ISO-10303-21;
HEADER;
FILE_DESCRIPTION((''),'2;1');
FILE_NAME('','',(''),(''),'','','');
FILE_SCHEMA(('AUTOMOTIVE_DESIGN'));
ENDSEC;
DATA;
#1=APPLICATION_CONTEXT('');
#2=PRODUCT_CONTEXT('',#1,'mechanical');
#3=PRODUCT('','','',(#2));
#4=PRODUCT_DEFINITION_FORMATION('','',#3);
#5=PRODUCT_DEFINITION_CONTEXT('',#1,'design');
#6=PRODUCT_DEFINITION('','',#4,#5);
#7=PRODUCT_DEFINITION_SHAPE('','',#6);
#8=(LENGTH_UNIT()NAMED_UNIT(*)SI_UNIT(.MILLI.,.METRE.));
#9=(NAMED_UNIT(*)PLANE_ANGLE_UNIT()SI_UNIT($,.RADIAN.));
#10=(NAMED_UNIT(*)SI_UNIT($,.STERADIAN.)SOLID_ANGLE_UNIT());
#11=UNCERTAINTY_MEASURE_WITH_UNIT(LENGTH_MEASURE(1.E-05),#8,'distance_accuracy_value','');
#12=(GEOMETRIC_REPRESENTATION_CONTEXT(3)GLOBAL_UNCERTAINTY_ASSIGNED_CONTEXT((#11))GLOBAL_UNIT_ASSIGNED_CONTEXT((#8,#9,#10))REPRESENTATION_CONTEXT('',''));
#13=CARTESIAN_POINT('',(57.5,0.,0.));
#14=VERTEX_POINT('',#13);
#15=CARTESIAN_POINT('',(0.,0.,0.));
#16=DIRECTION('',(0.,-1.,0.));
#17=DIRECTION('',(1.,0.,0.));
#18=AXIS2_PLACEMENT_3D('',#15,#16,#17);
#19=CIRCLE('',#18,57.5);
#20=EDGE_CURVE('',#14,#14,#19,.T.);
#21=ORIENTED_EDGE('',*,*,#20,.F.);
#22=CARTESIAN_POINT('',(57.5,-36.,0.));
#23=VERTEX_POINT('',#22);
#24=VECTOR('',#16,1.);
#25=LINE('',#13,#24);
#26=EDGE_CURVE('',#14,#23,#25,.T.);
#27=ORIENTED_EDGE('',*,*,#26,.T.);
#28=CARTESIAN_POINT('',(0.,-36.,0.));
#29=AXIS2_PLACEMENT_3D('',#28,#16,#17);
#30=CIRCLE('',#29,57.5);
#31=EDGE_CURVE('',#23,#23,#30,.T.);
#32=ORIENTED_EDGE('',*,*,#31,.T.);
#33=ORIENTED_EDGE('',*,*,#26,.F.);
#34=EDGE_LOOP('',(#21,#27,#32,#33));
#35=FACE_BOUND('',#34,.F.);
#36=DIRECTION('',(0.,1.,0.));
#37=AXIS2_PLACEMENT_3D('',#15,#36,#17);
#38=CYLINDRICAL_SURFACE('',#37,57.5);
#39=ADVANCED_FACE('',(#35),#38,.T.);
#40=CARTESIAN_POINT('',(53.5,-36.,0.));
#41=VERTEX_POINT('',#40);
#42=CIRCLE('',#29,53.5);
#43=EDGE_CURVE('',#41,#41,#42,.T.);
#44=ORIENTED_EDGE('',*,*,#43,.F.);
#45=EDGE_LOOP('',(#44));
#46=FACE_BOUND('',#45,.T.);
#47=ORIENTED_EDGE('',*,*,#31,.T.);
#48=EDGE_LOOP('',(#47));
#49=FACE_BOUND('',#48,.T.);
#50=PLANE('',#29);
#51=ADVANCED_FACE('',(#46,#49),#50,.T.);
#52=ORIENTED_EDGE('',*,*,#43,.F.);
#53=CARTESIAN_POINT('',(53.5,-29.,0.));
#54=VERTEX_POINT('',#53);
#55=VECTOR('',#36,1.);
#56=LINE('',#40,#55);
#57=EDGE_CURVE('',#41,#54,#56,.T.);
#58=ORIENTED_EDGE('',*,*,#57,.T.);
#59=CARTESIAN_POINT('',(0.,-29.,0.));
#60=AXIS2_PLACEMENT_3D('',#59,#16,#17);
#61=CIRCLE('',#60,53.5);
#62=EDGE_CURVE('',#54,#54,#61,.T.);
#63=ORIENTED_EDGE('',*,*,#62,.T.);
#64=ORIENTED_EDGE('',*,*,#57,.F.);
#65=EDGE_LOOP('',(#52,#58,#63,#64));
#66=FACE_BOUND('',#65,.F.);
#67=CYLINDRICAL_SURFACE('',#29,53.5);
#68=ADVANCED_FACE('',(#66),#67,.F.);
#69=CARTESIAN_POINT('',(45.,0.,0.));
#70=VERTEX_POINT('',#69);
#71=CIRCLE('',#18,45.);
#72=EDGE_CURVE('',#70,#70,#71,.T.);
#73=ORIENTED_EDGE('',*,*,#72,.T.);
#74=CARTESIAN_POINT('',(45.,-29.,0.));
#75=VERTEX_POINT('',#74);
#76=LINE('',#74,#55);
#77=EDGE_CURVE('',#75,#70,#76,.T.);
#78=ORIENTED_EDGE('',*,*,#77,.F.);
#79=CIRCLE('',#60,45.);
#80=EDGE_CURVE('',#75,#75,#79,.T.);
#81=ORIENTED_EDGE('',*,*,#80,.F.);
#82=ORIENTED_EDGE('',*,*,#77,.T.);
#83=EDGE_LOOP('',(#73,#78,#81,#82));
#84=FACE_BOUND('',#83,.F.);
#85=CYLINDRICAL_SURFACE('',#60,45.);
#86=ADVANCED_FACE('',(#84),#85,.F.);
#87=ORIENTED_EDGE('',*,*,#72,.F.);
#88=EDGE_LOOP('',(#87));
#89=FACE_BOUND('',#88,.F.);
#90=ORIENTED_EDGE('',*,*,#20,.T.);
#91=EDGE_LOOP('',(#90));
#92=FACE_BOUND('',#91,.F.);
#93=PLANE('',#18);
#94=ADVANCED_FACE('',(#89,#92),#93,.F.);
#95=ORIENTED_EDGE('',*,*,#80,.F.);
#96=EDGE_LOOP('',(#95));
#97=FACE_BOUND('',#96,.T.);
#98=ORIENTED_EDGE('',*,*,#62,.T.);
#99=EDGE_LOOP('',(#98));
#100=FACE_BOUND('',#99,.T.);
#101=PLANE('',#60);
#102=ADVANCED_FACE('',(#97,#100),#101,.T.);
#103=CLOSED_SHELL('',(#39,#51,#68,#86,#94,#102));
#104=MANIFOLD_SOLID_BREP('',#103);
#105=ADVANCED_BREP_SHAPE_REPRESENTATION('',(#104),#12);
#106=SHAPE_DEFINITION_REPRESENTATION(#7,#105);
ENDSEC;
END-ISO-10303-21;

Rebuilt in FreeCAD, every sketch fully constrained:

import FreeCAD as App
import Part
import Sketcher
from FreeCAD import Vector

doc = App.newDocument("Part")
params = doc.addObject("Spreadsheet::Sheet", "Params")
for row, (alias, value) in enumerate([
    ("sketch1_diameter", "115 mm"),
    ("pad1_length", "36 mm"),
    ("sketch2_diameter", "107 mm"),
    ("pocket1_length", "7 mm"),
    ("sketch3_diameter", "90 mm"),
], start=1):
    params.set(f"A{row}", alias)
    params.set(f"B{row}", "=" + value)
    params.setAlias(f"B{row}", alias)

body = doc.addObject("PartDesign::Body", "Body")

# Sketch on XZ plane
sketch1 = doc.addObject("Sketcher::SketchObject", "Sketch")
body.addObject(sketch1)
sketch1.AttachmentSupport = (doc.XZ_Plane, [""])
sketch1.MapMode = "FlatFace"
sketch1.addGeometry(Part.Circle(Vector(0, 0, 0), Vector(0, 0, 1), 57.5), False)
sketch1.addConstraint([
    Sketcher.Constraint("Coincident", 0, 3, -1, 1),
    Sketcher.Constraint("Diameter", 0, 115.0),
])
sketch1.setExpression("Constraints[1]", "Params.sketch1_diameter")
pad1 = doc.addObject("PartDesign::Pad", "Pad")
body.addObject(pad1)
pad1.Profile = sketch1
pad1.setExpression("Length", "Params.pad1_length")

# Sketch on XZ plane
sketch2 = doc.addObject("Sketcher::SketchObject", "Sketch001")
body.addObject(sketch2)
sketch2.AttachmentSupport = (doc.XZ_Plane, [""])
sketch2.MapMode = "FlatFace"
sketch2.AttachmentOffset = App.Placement(Vector(0, 0, 36), App.Rotation())
sketch2.addGeometry(Part.Circle(Vector(0, 0, 0), Vector(0, 0, 1), 53.5), False)
sketch2.addConstraint([
    Sketcher.Constraint("Coincident", 0, 3, -1, 1),
    Sketcher.Constraint("Diameter", 0, 107.0),
])
sketch2.setExpression("Constraints[1]", "Params.sketch2_diameter")
pocket1 = doc.addObject("PartDesign::Pocket", "Pocket")
body.addObject(pocket1)
pocket1.Profile = sketch2
pocket1.setExpression("Length", "Params.pocket1_length")

# Sketch on XZ plane
sketch3 = doc.addObject("Sketcher::SketchObject", "Sketch002")
body.addObject(sketch3)
sketch3.AttachmentSupport = (doc.XZ_Plane, [""])
sketch3.MapMode = "FlatFace"
sketch3.AttachmentOffset = App.Placement(Vector(0, 0, 29), App.Rotation())
sketch3.addGeometry(Part.Circle(Vector(0, 0, 0), Vector(0, 0, 1), 45), False)
sketch3.addConstraint([
    Sketcher.Constraint("Coincident", 0, 3, -1, 1),
    Sketcher.Constraint("Diameter", 0, 90.0),
])
sketch3.setExpression("Constraints[1]", "Params.sketch3_diameter")
pocket2 = doc.addObject("PartDesign::Pocket", "Pocket001")
body.addObject(pocket2)
pocket2.Profile = sketch3
pocket2.Type = "ThroughAll"

doc.recompute()
